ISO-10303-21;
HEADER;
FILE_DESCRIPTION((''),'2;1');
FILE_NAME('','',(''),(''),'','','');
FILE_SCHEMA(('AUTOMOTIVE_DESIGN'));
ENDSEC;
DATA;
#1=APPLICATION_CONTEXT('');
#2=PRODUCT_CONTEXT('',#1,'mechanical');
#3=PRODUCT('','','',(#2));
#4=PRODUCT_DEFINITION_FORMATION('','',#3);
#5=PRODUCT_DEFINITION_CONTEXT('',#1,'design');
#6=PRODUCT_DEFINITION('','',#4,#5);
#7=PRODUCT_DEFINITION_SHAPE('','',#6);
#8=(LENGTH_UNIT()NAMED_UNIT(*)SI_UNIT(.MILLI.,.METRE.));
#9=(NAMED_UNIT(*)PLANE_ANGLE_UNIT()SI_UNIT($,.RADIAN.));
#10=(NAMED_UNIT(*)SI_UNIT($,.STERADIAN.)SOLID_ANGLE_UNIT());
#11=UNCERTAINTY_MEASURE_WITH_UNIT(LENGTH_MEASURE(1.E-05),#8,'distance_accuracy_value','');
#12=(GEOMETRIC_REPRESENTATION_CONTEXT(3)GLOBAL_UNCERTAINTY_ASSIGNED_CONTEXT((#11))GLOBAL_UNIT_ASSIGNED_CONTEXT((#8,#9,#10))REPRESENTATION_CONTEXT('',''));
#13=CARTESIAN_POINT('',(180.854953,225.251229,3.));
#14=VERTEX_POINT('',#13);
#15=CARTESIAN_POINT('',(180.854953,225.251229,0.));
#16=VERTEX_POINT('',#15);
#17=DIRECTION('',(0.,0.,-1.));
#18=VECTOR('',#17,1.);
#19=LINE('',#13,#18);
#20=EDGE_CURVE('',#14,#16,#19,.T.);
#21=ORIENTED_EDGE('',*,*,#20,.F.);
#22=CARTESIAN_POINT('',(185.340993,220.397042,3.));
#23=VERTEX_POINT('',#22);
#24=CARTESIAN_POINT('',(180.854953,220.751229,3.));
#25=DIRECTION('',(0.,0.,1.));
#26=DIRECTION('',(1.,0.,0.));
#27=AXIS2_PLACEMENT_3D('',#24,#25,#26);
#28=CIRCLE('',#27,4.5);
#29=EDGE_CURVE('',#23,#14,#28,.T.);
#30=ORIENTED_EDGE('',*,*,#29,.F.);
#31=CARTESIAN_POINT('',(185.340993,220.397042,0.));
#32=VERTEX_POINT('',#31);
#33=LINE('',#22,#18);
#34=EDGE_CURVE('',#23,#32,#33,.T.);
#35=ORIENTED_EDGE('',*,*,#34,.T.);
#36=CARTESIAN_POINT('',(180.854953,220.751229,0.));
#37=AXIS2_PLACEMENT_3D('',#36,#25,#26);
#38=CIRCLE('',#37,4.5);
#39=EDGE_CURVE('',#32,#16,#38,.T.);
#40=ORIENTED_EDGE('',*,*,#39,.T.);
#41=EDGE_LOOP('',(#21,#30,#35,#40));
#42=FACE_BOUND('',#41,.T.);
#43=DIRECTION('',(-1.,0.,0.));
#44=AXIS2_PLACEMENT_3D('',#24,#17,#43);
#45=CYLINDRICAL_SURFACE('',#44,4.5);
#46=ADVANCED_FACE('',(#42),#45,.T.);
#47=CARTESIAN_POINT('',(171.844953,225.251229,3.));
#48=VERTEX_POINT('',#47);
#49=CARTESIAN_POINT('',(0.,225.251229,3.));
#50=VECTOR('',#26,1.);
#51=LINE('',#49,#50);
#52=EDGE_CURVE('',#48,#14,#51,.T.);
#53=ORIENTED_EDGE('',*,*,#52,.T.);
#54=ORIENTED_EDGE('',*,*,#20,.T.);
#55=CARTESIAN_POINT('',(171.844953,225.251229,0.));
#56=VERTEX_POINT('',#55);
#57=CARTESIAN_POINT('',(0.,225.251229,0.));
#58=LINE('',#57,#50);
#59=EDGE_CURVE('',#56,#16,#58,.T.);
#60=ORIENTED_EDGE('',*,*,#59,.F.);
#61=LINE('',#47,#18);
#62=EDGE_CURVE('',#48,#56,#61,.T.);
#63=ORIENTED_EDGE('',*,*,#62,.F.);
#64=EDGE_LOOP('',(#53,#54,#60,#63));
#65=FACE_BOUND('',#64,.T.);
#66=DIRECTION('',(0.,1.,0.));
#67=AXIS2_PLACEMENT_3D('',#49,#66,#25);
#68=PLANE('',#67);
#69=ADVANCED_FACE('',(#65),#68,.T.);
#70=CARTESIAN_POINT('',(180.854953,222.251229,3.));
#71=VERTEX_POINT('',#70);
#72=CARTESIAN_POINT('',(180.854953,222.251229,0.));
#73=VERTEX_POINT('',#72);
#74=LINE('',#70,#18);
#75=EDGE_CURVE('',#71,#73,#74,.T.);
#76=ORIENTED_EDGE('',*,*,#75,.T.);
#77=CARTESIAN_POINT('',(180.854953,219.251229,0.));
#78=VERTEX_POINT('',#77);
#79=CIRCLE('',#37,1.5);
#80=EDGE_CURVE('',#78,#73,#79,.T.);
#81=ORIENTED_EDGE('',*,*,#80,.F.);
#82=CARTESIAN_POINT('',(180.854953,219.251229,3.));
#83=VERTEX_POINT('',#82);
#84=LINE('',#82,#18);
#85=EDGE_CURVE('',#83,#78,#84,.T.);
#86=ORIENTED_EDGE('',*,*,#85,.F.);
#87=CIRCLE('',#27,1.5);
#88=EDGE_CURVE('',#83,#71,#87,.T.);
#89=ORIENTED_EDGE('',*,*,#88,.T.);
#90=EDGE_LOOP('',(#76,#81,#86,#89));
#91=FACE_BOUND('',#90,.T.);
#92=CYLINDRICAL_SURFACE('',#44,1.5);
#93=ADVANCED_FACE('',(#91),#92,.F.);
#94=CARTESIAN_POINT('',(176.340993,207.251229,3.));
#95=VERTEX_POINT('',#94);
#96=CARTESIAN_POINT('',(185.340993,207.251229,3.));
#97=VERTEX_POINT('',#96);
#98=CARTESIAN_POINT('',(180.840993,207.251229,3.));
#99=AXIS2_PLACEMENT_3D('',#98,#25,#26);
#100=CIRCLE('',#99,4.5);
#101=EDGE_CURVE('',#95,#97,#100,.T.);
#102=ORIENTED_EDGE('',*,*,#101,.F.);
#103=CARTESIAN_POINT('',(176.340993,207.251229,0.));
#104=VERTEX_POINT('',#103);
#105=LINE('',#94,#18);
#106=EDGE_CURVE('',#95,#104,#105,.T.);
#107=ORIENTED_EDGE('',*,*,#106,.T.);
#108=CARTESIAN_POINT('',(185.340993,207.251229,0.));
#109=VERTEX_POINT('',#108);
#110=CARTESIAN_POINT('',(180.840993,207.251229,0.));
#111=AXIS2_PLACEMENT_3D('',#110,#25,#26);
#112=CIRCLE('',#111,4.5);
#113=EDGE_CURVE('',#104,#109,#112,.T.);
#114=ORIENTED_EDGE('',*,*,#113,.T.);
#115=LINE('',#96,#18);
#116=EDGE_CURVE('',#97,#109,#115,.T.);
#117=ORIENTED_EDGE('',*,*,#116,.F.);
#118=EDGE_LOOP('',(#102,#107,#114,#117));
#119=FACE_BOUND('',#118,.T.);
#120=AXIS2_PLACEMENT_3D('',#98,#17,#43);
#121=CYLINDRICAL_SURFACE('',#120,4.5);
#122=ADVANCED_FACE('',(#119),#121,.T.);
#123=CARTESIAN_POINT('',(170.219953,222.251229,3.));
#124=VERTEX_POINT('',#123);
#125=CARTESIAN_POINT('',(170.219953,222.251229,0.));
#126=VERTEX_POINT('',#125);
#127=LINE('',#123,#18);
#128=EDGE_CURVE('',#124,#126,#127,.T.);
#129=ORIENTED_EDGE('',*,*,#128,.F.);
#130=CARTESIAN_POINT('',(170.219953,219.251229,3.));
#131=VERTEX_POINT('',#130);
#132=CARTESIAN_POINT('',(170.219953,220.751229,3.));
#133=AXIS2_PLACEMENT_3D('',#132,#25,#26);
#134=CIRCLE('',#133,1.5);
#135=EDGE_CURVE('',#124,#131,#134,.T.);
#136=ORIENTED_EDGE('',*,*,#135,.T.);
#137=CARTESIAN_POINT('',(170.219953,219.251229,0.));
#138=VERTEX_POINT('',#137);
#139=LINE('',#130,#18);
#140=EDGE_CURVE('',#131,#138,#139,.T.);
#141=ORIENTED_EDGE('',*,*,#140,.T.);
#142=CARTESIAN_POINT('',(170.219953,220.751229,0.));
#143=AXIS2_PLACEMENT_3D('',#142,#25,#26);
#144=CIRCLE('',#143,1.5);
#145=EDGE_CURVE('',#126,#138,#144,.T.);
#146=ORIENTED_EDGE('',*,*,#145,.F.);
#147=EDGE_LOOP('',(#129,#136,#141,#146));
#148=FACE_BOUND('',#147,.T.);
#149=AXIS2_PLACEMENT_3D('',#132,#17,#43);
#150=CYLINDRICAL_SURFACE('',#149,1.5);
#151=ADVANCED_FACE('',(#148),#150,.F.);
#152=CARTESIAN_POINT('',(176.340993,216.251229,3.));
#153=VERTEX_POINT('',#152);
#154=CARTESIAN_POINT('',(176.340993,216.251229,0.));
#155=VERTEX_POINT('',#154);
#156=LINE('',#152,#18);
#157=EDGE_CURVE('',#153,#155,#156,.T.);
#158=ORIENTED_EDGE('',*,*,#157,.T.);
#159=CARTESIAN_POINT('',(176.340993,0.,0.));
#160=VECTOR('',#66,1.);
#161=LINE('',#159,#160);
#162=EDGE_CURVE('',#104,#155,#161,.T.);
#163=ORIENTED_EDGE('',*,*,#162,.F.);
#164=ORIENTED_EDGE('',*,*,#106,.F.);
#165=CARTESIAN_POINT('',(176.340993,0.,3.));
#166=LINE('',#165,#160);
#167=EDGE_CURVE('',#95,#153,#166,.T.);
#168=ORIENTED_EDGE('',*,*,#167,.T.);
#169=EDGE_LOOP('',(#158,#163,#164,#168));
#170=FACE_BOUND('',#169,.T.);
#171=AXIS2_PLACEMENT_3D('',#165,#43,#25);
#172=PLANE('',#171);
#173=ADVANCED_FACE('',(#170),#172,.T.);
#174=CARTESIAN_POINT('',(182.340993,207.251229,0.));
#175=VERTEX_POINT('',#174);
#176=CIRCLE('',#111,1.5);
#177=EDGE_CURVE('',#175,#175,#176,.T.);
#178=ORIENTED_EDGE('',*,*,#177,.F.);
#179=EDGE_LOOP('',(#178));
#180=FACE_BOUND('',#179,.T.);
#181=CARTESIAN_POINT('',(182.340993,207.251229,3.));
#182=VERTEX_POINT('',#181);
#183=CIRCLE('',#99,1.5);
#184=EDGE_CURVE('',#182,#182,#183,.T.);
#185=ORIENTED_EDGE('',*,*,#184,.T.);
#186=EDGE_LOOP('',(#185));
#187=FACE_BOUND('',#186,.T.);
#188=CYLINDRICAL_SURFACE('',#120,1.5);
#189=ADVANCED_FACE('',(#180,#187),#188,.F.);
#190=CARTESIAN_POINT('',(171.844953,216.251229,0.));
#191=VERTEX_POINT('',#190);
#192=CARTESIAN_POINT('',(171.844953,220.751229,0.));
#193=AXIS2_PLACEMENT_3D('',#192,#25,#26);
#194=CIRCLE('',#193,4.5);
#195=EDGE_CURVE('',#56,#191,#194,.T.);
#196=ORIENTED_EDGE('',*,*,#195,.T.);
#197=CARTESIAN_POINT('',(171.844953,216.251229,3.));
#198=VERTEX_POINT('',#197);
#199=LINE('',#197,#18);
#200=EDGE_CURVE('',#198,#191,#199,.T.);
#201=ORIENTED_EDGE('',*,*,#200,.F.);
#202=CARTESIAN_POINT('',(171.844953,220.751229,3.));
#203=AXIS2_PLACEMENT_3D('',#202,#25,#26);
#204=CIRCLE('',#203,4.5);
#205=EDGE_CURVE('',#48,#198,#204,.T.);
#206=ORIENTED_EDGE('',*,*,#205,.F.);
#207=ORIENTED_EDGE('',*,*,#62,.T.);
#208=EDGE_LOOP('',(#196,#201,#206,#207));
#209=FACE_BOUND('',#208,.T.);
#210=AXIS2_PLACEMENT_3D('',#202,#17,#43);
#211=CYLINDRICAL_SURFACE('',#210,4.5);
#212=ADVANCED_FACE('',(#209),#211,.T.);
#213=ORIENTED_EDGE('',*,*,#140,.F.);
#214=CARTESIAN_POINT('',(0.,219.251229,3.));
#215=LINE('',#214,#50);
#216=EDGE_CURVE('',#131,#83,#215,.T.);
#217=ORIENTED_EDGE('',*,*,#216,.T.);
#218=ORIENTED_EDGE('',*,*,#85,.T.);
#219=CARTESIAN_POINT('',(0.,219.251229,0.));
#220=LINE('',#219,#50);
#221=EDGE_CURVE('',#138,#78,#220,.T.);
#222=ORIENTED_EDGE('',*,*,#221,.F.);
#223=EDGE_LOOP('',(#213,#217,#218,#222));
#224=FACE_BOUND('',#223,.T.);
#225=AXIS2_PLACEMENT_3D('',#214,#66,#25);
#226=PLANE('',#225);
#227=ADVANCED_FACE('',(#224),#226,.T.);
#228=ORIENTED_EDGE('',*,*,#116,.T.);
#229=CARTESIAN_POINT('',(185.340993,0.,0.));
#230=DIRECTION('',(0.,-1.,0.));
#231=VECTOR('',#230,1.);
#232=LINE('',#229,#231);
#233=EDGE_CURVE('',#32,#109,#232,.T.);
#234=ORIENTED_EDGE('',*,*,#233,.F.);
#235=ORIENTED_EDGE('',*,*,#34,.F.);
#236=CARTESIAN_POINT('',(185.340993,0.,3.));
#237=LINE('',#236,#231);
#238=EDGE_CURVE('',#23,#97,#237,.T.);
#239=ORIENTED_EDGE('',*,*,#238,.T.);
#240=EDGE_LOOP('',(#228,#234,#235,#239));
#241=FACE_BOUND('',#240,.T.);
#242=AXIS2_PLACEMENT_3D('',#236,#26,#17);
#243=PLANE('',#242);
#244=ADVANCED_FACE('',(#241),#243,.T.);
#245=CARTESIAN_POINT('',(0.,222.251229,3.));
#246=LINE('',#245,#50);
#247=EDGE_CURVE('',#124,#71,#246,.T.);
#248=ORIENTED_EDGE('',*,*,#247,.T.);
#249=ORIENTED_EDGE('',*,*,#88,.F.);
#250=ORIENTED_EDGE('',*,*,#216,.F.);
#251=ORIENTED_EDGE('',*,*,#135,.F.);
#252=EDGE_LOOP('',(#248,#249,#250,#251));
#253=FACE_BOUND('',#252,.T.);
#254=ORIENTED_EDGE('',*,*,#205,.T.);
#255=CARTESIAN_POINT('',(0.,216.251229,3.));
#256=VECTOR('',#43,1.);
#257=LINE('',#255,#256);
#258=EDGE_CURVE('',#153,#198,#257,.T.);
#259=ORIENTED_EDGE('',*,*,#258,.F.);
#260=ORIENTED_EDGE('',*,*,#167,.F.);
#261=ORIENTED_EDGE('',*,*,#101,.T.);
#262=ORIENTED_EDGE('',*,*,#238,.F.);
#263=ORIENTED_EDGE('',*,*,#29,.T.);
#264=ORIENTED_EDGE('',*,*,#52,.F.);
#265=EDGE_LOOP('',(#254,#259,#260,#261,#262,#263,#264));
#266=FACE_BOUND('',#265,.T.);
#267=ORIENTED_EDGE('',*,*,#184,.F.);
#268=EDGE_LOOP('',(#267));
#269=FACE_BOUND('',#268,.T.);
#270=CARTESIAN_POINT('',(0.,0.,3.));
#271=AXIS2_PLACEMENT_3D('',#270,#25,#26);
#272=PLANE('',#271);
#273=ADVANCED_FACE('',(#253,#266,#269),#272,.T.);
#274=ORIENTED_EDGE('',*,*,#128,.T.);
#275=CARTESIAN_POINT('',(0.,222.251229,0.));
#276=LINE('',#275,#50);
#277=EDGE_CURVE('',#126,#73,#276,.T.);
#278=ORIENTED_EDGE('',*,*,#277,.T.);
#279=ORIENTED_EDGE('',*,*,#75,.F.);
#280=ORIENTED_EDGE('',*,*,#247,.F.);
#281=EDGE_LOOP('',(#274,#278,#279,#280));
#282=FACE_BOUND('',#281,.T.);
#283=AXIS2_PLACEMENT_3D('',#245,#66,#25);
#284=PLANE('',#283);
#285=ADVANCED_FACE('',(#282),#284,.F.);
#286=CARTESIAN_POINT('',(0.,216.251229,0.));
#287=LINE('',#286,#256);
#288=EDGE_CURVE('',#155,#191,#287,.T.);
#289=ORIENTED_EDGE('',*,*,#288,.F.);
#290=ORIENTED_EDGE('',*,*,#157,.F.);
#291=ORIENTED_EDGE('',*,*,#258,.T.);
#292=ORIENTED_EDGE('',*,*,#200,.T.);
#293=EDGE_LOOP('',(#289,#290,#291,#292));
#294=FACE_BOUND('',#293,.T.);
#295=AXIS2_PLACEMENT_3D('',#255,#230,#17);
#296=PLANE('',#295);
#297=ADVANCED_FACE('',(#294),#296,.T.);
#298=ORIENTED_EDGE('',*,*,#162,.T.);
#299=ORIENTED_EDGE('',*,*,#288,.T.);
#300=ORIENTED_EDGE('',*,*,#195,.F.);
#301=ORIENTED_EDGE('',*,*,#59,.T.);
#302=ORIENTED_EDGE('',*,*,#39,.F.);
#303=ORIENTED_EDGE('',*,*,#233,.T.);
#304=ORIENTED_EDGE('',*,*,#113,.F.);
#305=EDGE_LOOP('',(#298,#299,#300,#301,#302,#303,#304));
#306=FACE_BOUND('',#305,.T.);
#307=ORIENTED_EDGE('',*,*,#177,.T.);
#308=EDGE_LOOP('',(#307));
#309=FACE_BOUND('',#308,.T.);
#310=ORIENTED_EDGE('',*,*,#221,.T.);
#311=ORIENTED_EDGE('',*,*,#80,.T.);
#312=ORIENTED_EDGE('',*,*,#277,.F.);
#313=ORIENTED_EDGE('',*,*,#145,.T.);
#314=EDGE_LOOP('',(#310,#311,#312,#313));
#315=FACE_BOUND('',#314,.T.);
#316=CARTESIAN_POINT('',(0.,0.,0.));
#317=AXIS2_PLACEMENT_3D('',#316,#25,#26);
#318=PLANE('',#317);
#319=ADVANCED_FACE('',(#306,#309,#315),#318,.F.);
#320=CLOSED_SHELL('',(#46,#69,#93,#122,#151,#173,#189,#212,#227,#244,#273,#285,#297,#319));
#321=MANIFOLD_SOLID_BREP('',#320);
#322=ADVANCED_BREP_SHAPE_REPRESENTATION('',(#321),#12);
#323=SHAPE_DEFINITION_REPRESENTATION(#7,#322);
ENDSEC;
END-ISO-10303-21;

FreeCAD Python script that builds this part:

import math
import FreeCAD as App
import Part
import Sketcher

V = App.Vector
Q = App.Units.Quantity

doc = App.newDocument("Part")
body = doc.addObject("PartDesign::Body", "Body")

sketch1 = body.newObject("Sketcher::SketchObject", "Sketch")
sketch1.AttachmentSupport = (doc.getObject("XY_Plane"), [""])
sketch1.MapMode = "FlatFace"
sketch1.addGeometry([
    Part.LineSegment(V(185.3, 207.3, 0), V(185.3, 220.4, 0)),
    Part.ArcOfCircle(Part.Circle(V(180.9, 220.8, 0), V(0, 0, 1), 4.5), math.radians(-5), math.radians(90)),
    Part.LineSegment(V(180.9, 225.3, 0), V(171.8, 225.3, 0)),
    Part.ArcOfCircle(Part.Circle(V(171.8, 220.8, 0), V(0, 0, 1), 4.5), math.radians(90), math.radians(270)),
    Part.LineSegment(V(171.8, 216.3, 0), V(176.3, 216.3, 0)),
    Part.LineSegment(V(176.3, 216.3, 0), V(176.3, 207.3, 0)),
    Part.ArcOfCircle(Part.Circle(V(180.8, 207.3, 0), V(0, 0, 1), 4.5), math.radians(180), math.radians(360)),
    Part.Circle(V(180.8, 207.3, 0), V(0, 0, 1), 1.5),
    Part.LineSegment(V(180.9, 219.3, 0), V(170.2, 219.3, 0)),
    Part.ArcOfCircle(Part.Circle(V(170.2, 220.8, 0), V(0, 0, 1), 1.5), math.radians(90), math.radians(270)),
    Part.LineSegment(V(170.2, 222.3, 0), V(180.9, 222.3, 0)),
    Part.ArcOfCircle(Part.Circle(V(180.9, 220.8, 0), V(0, 0, 1), 1.5), math.radians(-90), math.radians(90)),
], False)
sketch1.addConstraint([
    Sketcher.Constraint("Coincident", 0, 2, 1, 1),
    Sketcher.Constraint("Tangent", 1, 2, 2, 1),
    Sketcher.Constraint("Tangent", 2, 2, 3, 1),
    Sketcher.Constraint("Tangent", 3, 2, 4, 1),
    Sketcher.Constraint("Coincident", 4, 2, 5, 1),
    Sketcher.Constraint("Tangent", 5, 2, 6, 1),
    Sketcher.Constraint("Tangent", 6, 2, 0, 1),
    Sketcher.Constraint("Tangent", 8, 2, 9, 2),
    Sketcher.Constraint("Tangent", 9, 1, 10, 1),
    Sketcher.Constraint("Tangent", 10, 2, 11, 2),
    Sketcher.Constraint("Tangent", 11, 1, 8, 1),
    Sketcher.Constraint("Vertical", 0),
    Sketcher.Constraint("Horizontal", 2),
    Sketcher.Constraint("Horizontal", 4),
    Sketcher.Constraint("Vertical", 5),
    Sketcher.Constraint("Horizontal", 8),
    Sketcher.Constraint("Horizontal", 10),
    Sketcher.Constraint("Coincident", 7, 3, 6, 3),
    Sketcher.Constraint("Coincident", 11, 3, 1, 3),
    Sketcher.Constraint("Equal", 1, 3),
    Sketcher.Constraint("Equal", 3, 6),
    Sketcher.Constraint("Equal", 7, 9),
    Sketcher.Constraint("Diameter", 7, Q("3 mm")),
    Sketcher.Constraint("Radius", 1, Q("4.5 mm")),
    Sketcher.Constraint("DistanceY", 5, 2, 5, 1, Q("9 mm")),
    Sketcher.Constraint("DistanceX", 2, 2, 2, 1, Q("9.01 mm")),
    Sketcher.Constraint("DistanceX", 8, 2, 8, 1, Q("10.635 mm")),
    Sketcher.Constraint("DistanceX", 4, 1, 4, 2, Q("4.49604 mm")),
    Sketcher.Constraint("DistanceY", -1, 1, 1, 3, Q("220.751229 mm")),
    Sketcher.Constraint("DistanceX", -1, 1, 1, 3, Q("180.854953 mm")),
])
pad1 = body.newObject("PartDesign::Pad", "Pad")
pad1.Profile = sketch1
pad1.Length = 3

doc.recompute()
